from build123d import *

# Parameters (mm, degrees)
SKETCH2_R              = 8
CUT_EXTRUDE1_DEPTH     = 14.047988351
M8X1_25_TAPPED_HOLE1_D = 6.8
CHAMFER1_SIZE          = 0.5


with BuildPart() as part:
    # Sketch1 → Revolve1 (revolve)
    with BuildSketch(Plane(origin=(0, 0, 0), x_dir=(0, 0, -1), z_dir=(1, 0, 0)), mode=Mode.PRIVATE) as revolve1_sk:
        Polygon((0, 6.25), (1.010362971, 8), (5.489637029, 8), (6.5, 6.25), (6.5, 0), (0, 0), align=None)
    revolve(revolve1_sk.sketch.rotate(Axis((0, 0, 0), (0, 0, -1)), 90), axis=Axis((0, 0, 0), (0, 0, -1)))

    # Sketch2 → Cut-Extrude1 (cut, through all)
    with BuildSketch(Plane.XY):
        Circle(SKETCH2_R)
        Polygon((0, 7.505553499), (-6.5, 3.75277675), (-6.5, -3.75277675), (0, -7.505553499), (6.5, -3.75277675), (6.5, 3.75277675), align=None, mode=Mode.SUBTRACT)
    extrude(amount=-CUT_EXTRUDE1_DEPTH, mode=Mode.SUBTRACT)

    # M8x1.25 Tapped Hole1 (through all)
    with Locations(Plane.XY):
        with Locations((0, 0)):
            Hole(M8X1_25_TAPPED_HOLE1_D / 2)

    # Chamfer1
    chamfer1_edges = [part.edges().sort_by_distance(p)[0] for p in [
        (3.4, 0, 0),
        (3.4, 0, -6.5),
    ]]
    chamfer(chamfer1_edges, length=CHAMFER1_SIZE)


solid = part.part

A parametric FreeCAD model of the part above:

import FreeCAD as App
import Part
import Sketcher

V = App.Vector
Q = App.Units.Quantity


def edges_at(feature, points):
    """Names of the edges that pass closest to the given points."""
    edges = feature.Shape.Edges
    near = lambda p: min(range(len(edges)), key=lambda i: edges[i].distToShape(Part.Vertex(*p))[0])
    return sorted({f"Edge{near(p) + 1}" for p in points})


def add_polygon(sketch, points):
    """Adds a closed chain of lines whose ends are joined by coincident constraints."""
    first, n = sketch.GeometryCount, len(points)
    for a, b in zip(points, points[1:] + points[:1]):
        sketch.addGeometry(Part.LineSegment(App.Vector(*a, 0), App.Vector(*b, 0)), False)
    for i in range(n):
        sketch.addConstraint(Sketcher.Constraint("Coincident", first + i, 2, first + (i + 1) % n, 1))

doc = App.newDocument("Part")
body = doc.addObject("PartDesign::Body", "Body")

# Sketch on YZ plane
sketch1 = body.newObject("Sketcher::SketchObject", "Sketch")
sketch1.AttachmentSupport = (doc.getObject("YZ_Plane"), [""])
sketch1.MapMode = "FlatFace"
add_polygon(sketch1, [(8, -1.010363), (6.25, 0), (0, 0), (0, -6.5), (6.25, -6.5), (8, -5.489637)])  # lines 0-5
sketch1.addConstraint([
    Sketcher.Constraint("Horizontal", 1),
    Sketcher.Constraint("Vertical", 2),
    Sketcher.Constraint("Horizontal", 3),
    Sketcher.Constraint("Vertical", 5),
    Sketcher.Constraint("Coincident", 1, 2, -1, 1),
    Sketcher.Constraint("Vertical", 0, 2, 3, 2),
    Sketcher.Constraint("Equal", 0, 4),
    Sketcher.Constraint("Angle", 0, Q("150 deg")),
    Sketcher.Constraint("DistanceY", 2, 2, 2, 1, Q("6.5 mm")),
    Sketcher.Constraint("DistanceX", -1, 1, 4, 2, Q("8 mm")),
    Sketcher.Constraint("DistanceX", 1, 2, 1, 1, Q("6.25 mm")),
])
revolution = body.newObject("PartDesign::Revolution", "Revolution")
revolution.Profile = sketch1
revolution.ReferenceAxis = (sketch1, ["V_Axis"])
revolution.Angle = 360

# Sketch on XY plane
sketch2 = body.newObject("Sketcher::SketchObject", "Sketch001")
sketch2.AttachmentSupport = (doc.getObject("XY_Plane"), [""])
sketch2.MapMode = "FlatFace"
sketch2.addGeometry(Part.Circle(V(0, 0, 0), V(0, 0, 1), 8), False)  # 0
add_polygon(sketch2, [(-6.5, 3.752777), (0, 7.505553), (6.5, 3.752777), (6.5, -3.752777), (0, -7.505553), (-6.5, -3.752777)])  # lines 1-6
sketch2.addConstraint([
    Sketcher.Constraint("Vertical", 3),
    Sketcher.Constraint("Vertical", 6),
    Sketcher.Constraint("Coincident", 0, 3, -1, 1),
    Sketcher.Constraint("Symmetric", 1, 2, 4, 2, -1, 1),
    Sketcher.Constraint("Symmetric", 2, 2, 5, 2, -1, 1),
    Sketcher.Constraint("PointOnObject", 1, 2, -2),
    Sketcher.Constraint("Parallel", 1, 4),
    Sketcher.Constraint("Horizontal", 3, 2, 5, 2),
    Sketcher.Constraint("Diameter", 0, Q("16 mm")),
    Sketcher.Constraint("Angle", 1, Q("30 deg")),
    Sketcher.Constraint("DistanceX", 5, 2, 3, 2, Q("13 mm")),
    Sketcher.Constraint("DistanceY", 3, 2, 3, 1, Q("7.505554 mm")),
])
pocket1 = body.newObject("PartDesign::Pocket", "Pocket")
pocket1.Profile = sketch2
pocket1.Type = "ThroughAll"

# Sketch on XY plane
sketch3 = body.newObject("Sketcher::SketchObject", "Sketch002")
sketch3.AttachmentSupport = (doc.getObject("XY_Plane"), [""])
sketch3.MapMode = "FlatFace"
sketch3.addGeometry(Part.Circle(V(0, 0, 0), V(0, 0, 1), 3.4), False)
sketch3.addConstraint([
    Sketcher.Constraint("Coincident", 0, 3, -1, 1),
    Sketcher.Constraint("Diameter", 0, Q("6.8 mm")),
])
doc.recompute()
hole = body.newObject("PartDesign::Hole", "Hole")
hole.Profile = sketch3
hole.ThreadType = "None"
hole.Diameter = 6.8
hole.DepthType = "ThroughAll"
doc.recompute()

chamfer = body.newObject("PartDesign::Chamfer", "Chamfer")
chamfer.Base = (hole, edges_at(hole, [(3.4, 0, 0), (3.4, 0, -6.5)]))
chamfer.Size = 0.5

doc.recompute()
